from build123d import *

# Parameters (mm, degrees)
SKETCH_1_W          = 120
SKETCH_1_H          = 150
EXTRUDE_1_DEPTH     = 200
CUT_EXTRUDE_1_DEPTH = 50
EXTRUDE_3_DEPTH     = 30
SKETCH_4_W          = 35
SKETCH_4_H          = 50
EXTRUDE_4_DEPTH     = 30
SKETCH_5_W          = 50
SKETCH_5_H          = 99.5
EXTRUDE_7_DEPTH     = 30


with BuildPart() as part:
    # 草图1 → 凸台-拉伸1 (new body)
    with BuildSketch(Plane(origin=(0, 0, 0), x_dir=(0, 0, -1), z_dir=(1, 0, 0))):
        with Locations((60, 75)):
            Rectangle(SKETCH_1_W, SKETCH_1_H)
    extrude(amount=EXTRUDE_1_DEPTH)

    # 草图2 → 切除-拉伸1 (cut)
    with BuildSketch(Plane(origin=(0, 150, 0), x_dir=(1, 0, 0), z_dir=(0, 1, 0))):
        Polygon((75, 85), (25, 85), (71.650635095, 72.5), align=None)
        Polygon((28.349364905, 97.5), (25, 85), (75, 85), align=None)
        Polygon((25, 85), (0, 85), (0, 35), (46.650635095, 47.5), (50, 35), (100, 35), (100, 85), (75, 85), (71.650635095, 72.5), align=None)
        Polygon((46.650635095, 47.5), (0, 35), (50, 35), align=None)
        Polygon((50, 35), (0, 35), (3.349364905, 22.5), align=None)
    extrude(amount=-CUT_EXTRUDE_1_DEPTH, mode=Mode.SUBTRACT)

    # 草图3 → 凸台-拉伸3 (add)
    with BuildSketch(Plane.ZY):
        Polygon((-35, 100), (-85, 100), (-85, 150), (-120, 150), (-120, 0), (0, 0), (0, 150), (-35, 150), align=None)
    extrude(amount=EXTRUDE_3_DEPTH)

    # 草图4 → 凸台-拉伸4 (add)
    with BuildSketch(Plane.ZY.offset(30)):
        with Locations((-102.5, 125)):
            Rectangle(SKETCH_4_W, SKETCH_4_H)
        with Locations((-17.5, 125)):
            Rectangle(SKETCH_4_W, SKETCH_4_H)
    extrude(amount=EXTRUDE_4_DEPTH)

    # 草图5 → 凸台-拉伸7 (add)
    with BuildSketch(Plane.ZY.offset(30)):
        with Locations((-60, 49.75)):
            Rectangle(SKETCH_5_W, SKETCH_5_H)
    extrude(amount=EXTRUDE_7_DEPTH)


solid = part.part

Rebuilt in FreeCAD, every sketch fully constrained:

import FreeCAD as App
import Part
import Sketcher
Q = App.Units.Quantity

doc = App.newDocument("Part")
body = doc.addObject("PartDesign::Body", "Body")

# Sketch on YZ plane
sketch1 = body.newObject("Sketcher::SketchObject", "Sketch")
sketch1.AttachmentSupport = (doc.getObject("YZ_Plane"), [""])
sketch1.MapMode = "FlatFace"
sketch1.addGeometry(Part.LineSegment(App.Vector(150, 0, 0), App.Vector(0, 0, 0)), False)
sketch1.addGeometry(Part.LineSegment(App.Vector(0, 0, 0), App.Vector(0, -120, 0)), False)
sketch1.addGeometry(Part.LineSegment(App.Vector(0, -120, 0), App.Vector(150, -120, 0)), False)
sketch1.addGeometry(Part.LineSegment(App.Vector(150, -120, 0), App.Vector(150, 0, 0)), False)
sketch1.addConstraint(Sketcher.Constraint("Coincident", 0, 2, 1, 1))
sketch1.addConstraint(Sketcher.Constraint("Coincident", 1, 2, 2, 1))
sketch1.addConstraint(Sketcher.Constraint("Coincident", 2, 2, 3, 1))
sketch1.addConstraint(Sketcher.Constraint("Coincident", 3, 2, 0, 1))
sketch1.addConstraint(Sketcher.Constraint("Horizontal", 0))
sketch1.addConstraint(Sketcher.Constraint("Vertical", 1))
sketch1.addConstraint(Sketcher.Constraint("Horizontal", 2))
sketch1.addConstraint(Sketcher.Constraint("Vertical", 3))
sketch1.addConstraint(Sketcher.Constraint("Coincident", 0, 2, -1, 1))
sketch1.addConstraint(Sketcher.Constraint("DistanceX", 0, 2, 0, 1, 150.0))
sketch1.addConstraint(Sketcher.Constraint("DistanceY", 1, 2, 1, 1, 120.0))
pad1 = body.newObject("PartDesign::Pad", "Pad")
pad1.Profile = sketch1
pad1.Length = 200

# Sketch on XZ plane
sketch2 = body.newObject("Sketcher::SketchObject", "Sketch001")
sketch2.AttachmentSupport = (doc.getObject("XZ_Plane"), [""])
sketch2.MapMode = "FlatFace"
sketch2.AttachmentOffset = App.Placement(App.Vector(0, 0, -150), App.Rotation())
sketch2.addGeometry(Part.LineSegment(App.Vector(75, -85, 0), App.Vector(28, -98, 0)), False)
sketch2.addGeometry(Part.LineSegment(App.Vector(28, -98, 0), App.Vector(25, -85, 0)), False)
sketch2.addGeometry(Part.LineSegment(App.Vector(25, -85, 0), App.Vector(0, -85, 0)), False)
sketch2.addGeometry(Part.LineSegment(App.Vector(0, -85, 0), App.Vector(0, -35, 0)), False)
sketch2.addGeometry(Part.LineSegment(App.Vector(0, -35, 0), App.Vector(3, -22, 0)), False)
sketch2.addGeometry(Part.LineSegment(App.Vector(3, -22, 0), App.Vector(50, -35, 0)), False)
sketch2.addGeometry(Part.LineSegment(App.Vector(50, -35, 0), App.Vector(100, -35, 0)), False)
sketch2.addGeometry(Part.LineSegment(App.Vector(100, -35, 0), App.Vector(100, -85, 0)), False)
sketch2.addGeometry(Part.LineSegment(App.Vector(100, -85, 0), App.Vector(75, -85, 0)), False)
sketch2.addConstraint(Sketcher.Constraint("Coincident", 0, 2, 1, 1))
sketch2.addConstraint(Sketcher.Constraint("Coincident", 1, 2, 2, 1))
sketch2.addConstraint(Sketcher.Constraint("Coincident", 2, 2, 3, 1))
sketch2.addConstraint(Sketcher.Constraint("Coincident", 3, 2, 4, 1))
sketch2.addConstraint(Sketcher.Constraint("Coincident", 4, 2, 5, 1))
sketch2.addConstraint(Sketcher.Constraint("Coincident", 5, 2, 6, 1))
sketch2.addConstraint(Sketcher.Constraint("Coincident", 6, 2, 7, 1))
sketch2.addConstraint(Sketcher.Constraint("Coincident", 7, 2, 8, 1))
sketch2.addConstraint(Sketcher.Constraint("Coincident", 8, 2, 0, 1))
sketch2.addConstraint(Sketcher.Constraint("Horizontal", 2))
sketch2.addConstraint(Sketcher.Constraint("Vertical", 3))
sketch2.addConstraint(Sketcher.Constraint("Horizontal", 6))
sketch2.addConstraint(Sketcher.Constraint("Vertical", 7))
sketch2.addConstraint(Sketcher.Constraint("Horizontal", 8))
sketch2.addConstraint(Sketcher.Constraint("PointOnObject", 2, 2, -2))
sketch2.addConstraint(Sketcher.Constraint("Perpendicular", 0, 1))
sketch2.addConstraint(Sketcher.Constraint("Perpendicular", 4, 5))
sketch2.addConstraint(Sketcher.Constraint("Horizontal", 3, 2, 5, 2))
sketch2.addConstraint(Sketcher.Constraint("Horizontal", 2, 2, 7, 2))
sketch2.addConstraint(Sketcher.Constraint("Equal", 2, 8))
sketch2.addConstraint(Sketcher.Constraint("Equal", 6, 3))
sketch2.addConstraint(Sketcher.Constraint("Equal", 1, 4))
sketch2.addConstraint(Sketcher.Constraint("Equal", 0, 5))
sketch2.addConstraint(Sketcher.Constraint("DistanceX", 2, 2, 2, 1, 25.0))
sketch2.addConstraint(Sketcher.Constraint("Angle", 0, Q("-165 deg")))
sketch2.addConstraint(Sketcher.Constraint("DistanceY", 1, 2, -1, 1, 85.0))
sketch2.addConstraint(Sketcher.Constraint("DistanceX", -1, 1, 5, 2, 50.0))
pocket1 = body.newObject("PartDesign::Pocket", "Pocket")
pocket1.Profile = sketch2
pocket1.Length = 50
pocket1.Reversed = True

# Sketch on YZ plane
sketch3 = body.newObject("Sketcher::SketchObject", "Sketch002")
sketch3.AttachmentSupport = (doc.getObject("YZ_Plane"), [""])
sketch3.MapMode = "FlatFace"
sketch3.addGeometry(Part.LineSegment(App.Vector(100, -35, 0), App.Vector(100, -85, 0)), False)
sketch3.addGeometry(Part.LineSegment(App.Vector(100, -85, 0), App.Vector(150, -85, 0)), False)
sketch3.addGeometry(Part.LineSegment(App.Vector(150, -85, 0), App.Vector(150, -120, 0)), False)
sketch3.addGeometry(Part.LineSegment(App.Vector(150, -120, 0), App.Vector(0, -120, 0)), False)
sketch3.addGeometry(Part.LineSegment(App.Vector(0, -120, 0), App.Vector(0, 0, 0)), False)
sketch3.addGeometry(Part.LineSegment(App.Vector(0, 0, 0), App.Vector(150, 0, 0)), False)
sketch3.addGeometry(Part.LineSegment(App.Vector(150, 0, 0), App.Vector(150, -35, 0)), False)
sketch3.addGeometry(Part.LineSegment(App.Vector(150, -35, 0), App.Vector(100, -35, 0)), False)
sketch3.addConstraint(Sketcher.Constraint("Coincident", 0, 2, 1, 1))
sketch3.addConstraint(Sketcher.Constraint("Coincident", 1, 2, 2, 1))
sketch3.addConstraint(Sketcher.Constraint("Coincident", 2, 2, 3, 1))
sketch3.addConstraint(Sketcher.Constraint("Coincident", 3, 2, 4, 1))
sketch3.addConstraint(Sketcher.Constraint("Coincident", 4, 2, 5, 1))
sketch3.addConstraint(Sketcher.Constraint("Coincident", 5, 2, 6, 1))
sketch3.addConstraint(Sketcher.Constraint("Coincident", 6, 2, 7, 1))
sketch3.addConstraint(Sketcher.Constraint("Coincident", 7, 2, 0, 1))
sketch3.addConstraint(Sketcher.Constraint("Vertical", 0))
sketch3.addConstraint(Sketcher.Constraint("Horizontal", 1))
sketch3.addConstraint(Sketcher.Constraint("Vertical", 2))
sketch3.addConstraint(Sketcher.Constraint("Horizontal", 3))
sketch3.addConstraint(Sketcher.Constraint("Vertical", 4))
sketch3.addConstraint(Sketcher.Constraint("Horizontal", 5))
sketch3.addConstraint(Sketcher.Constraint("Vertical", 6))
sketch3.addConstraint(Sketcher.Constraint("Horizontal", 7))
sketch3.addConstraint(Sketcher.Constraint("Coincident", 4, 2, -1, 1))
sketch3.addConstraint(Sketcher.Constraint("Vertical", 2, 2, 5, 2))
sketch3.addConstraint(Sketcher.Constraint("Equal", 7, 0))
sketch3.addConstraint(Sketcher.Constraint("Equal", 2, 6))
sketch3.addConstraint(Sketcher.Constraint("DistanceX", 1, 1, 1, 2, 50.0))
sketch3.addConstraint(Sketcher.Constraint("DistanceX", 3, 2, 3, 1, 150.0))
sketch3.addConstraint(Sketcher.Constraint("DistanceY", 2, 2, 2, 1, 35.0))
pad2 = body.newObject("PartDesign::Pad", "Pad001")
pad2.Profile = sketch3
pad2.Length = 30
pad2.Reversed = True

# Sketch on YZ plane
sketch4 = body.newObject("Sketcher::SketchObject", "Sketch003")
sketch4.AttachmentSupport = (doc.getObject("YZ_Plane"), [""])
sketch4.MapMode = "FlatFace"
sketch4.AttachmentOffset = App.Placement(App.Vector(0, 0, -30), App.Rotation())
sketch4.addGeometry(Part.LineSegment(App.Vector(150, -120, 0), App.Vector(100, -120, 0)), False)
sketch4.addGeometry(Part.LineSegment(App.Vector(100, -120, 0), App.Vector(100, -85, 0)), False)
sketch4.addGeometry(Part.LineSegment(App.Vector(100, -85, 0), App.Vector(150, -85, 0)), False)
sketch4.addGeometry(Part.LineSegment(App.Vector(150, -85, 0), App.Vector(150, -120, 0)), False)
sketch4.addGeometry(Part.LineSegment(App.Vector(150, -35, 0), App.Vector(100, -35, 0)), False)
sketch4.addGeometry(Part.LineSegment(App.Vector(100, -35, 0), App.Vector(100, 0, 0)), False)
sketch4.addGeometry(Part.LineSegment(App.Vector(100, 0, 0), App.Vector(150, 0, 0)), False)
sketch4.addGeometry(Part.LineSegment(App.Vector(150, 0, 0), App.Vector(150, -35, 0)), False)
sketch4.addConstraint(Sketcher.Constraint("Coincident", 0, 2, 1, 1))
sketch4.addConstraint(Sketcher.Constraint("Coincident", 1, 2, 2, 1))
sketch4.addConstraint(Sketcher.Constraint("Coincident", 2, 2, 3, 1))
sketch4.addConstraint(Sketcher.Constraint("Coincident", 3, 2, 0, 1))
sketch4.addConstraint(Sketcher.Constraint("Coincident", 4, 2, 5, 1))
sketch4.addConstraint(Sketcher.Constraint("Coincident", 5, 2, 6, 1))
sketch4.addConstraint(Sketcher.Constraint("Coincident", 6, 2, 7, 1))
sketch4.addConstraint(Sketcher.Constraint("Coincident", 7, 2, 4, 1))
sketch4.addConstraint(Sketcher.Constraint("Horizontal", 0))
sketch4.addConstraint(Sketcher.Constraint("Vertical", 1))
sketch4.addConstraint(Sketcher.Constraint("Horizontal", 2))
sketch4.addConstraint(Sketcher.Constraint("Vertical", 3))
sketch4.addConstraint(Sketcher.Constraint("Horizontal", 4))
sketch4.addConstraint(Sketcher.Constraint("Vertical", 5))
sketch4.addConstraint(Sketcher.Constraint("Horizontal", 6))
sketch4.addConstraint(Sketcher.Constraint("Vertical", 7))
sketch4.addConstraint(Sketcher.Constraint("PointOnObject", 5, 2, -1))
sketch4.addConstraint(Sketcher.Constraint("Vertical", 1, 2, 4, 2))
sketch4.addConstraint(Sketcher.Constraint("Vertical", 3, 2, 6, 2))
sketch4.addConstraint(Sketcher.Constraint("Equal", 3, 5))
sketch4.addConstraint(Sketcher.Constraint("DistanceX", 0, 2, 0, 1, 50.0))
sketch4.addConstraint(Sketcher.Constraint("DistanceY", 1, 1, 1, 2, 35.0))
sketch4.addConstraint(Sketcher.Constraint("DistanceX", -1, 1, 0, 2, 100.0))
sketch4.addConstraint(Sketcher.Constraint("DistanceY", 0, 2, -1, 1, 120.0))
pad3 = body.newObject("PartDesign::Pad", "Pad002")
pad3.Profile = sketch4
pad3.Length = 30
pad3.Reversed = True

# Sketch on YZ plane
sketch5 = body.newObject("Sketcher::SketchObject", "Sketch004")
sketch5.AttachmentSupport = (doc.getObject("YZ_Plane"), [""])
sketch5.MapMode = "FlatFace"
sketch5.AttachmentOffset = App.Placement(App.Vector(0, 0, -30), App.Rotation())
sketch5.addGeometry(Part.LineSegment(App.Vector(100, -85, 0), App.Vector(0, -85, 0)), False)
sketch5.addGeometry(Part.LineSegment(App.Vector(0, -85, 0), App.Vector(0, -35, 0)), False)
sketch5.addGeometry(Part.LineSegment(App.Vector(0, -35, 0), App.Vector(100, -35, 0)), False)
sketch5.addGeometry(Part.LineSegment(App.Vector(100, -35, 0), App.Vector(100, -85, 0)), False)
sketch5.addConstraint(Sketcher.Constraint("Coincident", 0, 2, 1, 1))
sketch5.addConstraint(Sketcher.Constraint("Coincident", 1, 2, 2, 1))
sketch5.addConstraint(Sketcher.Constraint("Coincident", 2, 2, 3, 1))
sketch5.addConstraint(Sketcher.Constraint("Coincident", 3, 2, 0, 1))
sketch5.addConstraint(Sketcher.Constraint("Horizontal", 0))
sketch5.addConstraint(Sketcher.Constraint("Vertical", 1))
sketch5.addConstraint(Sketcher.Constraint("Horizontal", 2))
sketch5.addConstraint(Sketcher.Constraint("Vertical", 3))
sketch5.addConstraint(Sketcher.Constraint("PointOnObject", 0, 2, -2))
sketch5.addConstraint(Sketcher.Constraint("DistanceY", 1, 1, 1, 2, 50.0))
sketch5.addConstraint(Sketcher.Constraint("DistanceX", 0, 2, 0, 1, 99.5))
sketch5.addConstraint(Sketcher.Constraint("DistanceY", 0, 2, -1, 1, 85.0))
pad4 = body.newObject("PartDesign::Pad", "Pad003")
pad4.Profile = sketch5
pad4.Length = 30
pad4.Reversed = True

doc.recompute()
